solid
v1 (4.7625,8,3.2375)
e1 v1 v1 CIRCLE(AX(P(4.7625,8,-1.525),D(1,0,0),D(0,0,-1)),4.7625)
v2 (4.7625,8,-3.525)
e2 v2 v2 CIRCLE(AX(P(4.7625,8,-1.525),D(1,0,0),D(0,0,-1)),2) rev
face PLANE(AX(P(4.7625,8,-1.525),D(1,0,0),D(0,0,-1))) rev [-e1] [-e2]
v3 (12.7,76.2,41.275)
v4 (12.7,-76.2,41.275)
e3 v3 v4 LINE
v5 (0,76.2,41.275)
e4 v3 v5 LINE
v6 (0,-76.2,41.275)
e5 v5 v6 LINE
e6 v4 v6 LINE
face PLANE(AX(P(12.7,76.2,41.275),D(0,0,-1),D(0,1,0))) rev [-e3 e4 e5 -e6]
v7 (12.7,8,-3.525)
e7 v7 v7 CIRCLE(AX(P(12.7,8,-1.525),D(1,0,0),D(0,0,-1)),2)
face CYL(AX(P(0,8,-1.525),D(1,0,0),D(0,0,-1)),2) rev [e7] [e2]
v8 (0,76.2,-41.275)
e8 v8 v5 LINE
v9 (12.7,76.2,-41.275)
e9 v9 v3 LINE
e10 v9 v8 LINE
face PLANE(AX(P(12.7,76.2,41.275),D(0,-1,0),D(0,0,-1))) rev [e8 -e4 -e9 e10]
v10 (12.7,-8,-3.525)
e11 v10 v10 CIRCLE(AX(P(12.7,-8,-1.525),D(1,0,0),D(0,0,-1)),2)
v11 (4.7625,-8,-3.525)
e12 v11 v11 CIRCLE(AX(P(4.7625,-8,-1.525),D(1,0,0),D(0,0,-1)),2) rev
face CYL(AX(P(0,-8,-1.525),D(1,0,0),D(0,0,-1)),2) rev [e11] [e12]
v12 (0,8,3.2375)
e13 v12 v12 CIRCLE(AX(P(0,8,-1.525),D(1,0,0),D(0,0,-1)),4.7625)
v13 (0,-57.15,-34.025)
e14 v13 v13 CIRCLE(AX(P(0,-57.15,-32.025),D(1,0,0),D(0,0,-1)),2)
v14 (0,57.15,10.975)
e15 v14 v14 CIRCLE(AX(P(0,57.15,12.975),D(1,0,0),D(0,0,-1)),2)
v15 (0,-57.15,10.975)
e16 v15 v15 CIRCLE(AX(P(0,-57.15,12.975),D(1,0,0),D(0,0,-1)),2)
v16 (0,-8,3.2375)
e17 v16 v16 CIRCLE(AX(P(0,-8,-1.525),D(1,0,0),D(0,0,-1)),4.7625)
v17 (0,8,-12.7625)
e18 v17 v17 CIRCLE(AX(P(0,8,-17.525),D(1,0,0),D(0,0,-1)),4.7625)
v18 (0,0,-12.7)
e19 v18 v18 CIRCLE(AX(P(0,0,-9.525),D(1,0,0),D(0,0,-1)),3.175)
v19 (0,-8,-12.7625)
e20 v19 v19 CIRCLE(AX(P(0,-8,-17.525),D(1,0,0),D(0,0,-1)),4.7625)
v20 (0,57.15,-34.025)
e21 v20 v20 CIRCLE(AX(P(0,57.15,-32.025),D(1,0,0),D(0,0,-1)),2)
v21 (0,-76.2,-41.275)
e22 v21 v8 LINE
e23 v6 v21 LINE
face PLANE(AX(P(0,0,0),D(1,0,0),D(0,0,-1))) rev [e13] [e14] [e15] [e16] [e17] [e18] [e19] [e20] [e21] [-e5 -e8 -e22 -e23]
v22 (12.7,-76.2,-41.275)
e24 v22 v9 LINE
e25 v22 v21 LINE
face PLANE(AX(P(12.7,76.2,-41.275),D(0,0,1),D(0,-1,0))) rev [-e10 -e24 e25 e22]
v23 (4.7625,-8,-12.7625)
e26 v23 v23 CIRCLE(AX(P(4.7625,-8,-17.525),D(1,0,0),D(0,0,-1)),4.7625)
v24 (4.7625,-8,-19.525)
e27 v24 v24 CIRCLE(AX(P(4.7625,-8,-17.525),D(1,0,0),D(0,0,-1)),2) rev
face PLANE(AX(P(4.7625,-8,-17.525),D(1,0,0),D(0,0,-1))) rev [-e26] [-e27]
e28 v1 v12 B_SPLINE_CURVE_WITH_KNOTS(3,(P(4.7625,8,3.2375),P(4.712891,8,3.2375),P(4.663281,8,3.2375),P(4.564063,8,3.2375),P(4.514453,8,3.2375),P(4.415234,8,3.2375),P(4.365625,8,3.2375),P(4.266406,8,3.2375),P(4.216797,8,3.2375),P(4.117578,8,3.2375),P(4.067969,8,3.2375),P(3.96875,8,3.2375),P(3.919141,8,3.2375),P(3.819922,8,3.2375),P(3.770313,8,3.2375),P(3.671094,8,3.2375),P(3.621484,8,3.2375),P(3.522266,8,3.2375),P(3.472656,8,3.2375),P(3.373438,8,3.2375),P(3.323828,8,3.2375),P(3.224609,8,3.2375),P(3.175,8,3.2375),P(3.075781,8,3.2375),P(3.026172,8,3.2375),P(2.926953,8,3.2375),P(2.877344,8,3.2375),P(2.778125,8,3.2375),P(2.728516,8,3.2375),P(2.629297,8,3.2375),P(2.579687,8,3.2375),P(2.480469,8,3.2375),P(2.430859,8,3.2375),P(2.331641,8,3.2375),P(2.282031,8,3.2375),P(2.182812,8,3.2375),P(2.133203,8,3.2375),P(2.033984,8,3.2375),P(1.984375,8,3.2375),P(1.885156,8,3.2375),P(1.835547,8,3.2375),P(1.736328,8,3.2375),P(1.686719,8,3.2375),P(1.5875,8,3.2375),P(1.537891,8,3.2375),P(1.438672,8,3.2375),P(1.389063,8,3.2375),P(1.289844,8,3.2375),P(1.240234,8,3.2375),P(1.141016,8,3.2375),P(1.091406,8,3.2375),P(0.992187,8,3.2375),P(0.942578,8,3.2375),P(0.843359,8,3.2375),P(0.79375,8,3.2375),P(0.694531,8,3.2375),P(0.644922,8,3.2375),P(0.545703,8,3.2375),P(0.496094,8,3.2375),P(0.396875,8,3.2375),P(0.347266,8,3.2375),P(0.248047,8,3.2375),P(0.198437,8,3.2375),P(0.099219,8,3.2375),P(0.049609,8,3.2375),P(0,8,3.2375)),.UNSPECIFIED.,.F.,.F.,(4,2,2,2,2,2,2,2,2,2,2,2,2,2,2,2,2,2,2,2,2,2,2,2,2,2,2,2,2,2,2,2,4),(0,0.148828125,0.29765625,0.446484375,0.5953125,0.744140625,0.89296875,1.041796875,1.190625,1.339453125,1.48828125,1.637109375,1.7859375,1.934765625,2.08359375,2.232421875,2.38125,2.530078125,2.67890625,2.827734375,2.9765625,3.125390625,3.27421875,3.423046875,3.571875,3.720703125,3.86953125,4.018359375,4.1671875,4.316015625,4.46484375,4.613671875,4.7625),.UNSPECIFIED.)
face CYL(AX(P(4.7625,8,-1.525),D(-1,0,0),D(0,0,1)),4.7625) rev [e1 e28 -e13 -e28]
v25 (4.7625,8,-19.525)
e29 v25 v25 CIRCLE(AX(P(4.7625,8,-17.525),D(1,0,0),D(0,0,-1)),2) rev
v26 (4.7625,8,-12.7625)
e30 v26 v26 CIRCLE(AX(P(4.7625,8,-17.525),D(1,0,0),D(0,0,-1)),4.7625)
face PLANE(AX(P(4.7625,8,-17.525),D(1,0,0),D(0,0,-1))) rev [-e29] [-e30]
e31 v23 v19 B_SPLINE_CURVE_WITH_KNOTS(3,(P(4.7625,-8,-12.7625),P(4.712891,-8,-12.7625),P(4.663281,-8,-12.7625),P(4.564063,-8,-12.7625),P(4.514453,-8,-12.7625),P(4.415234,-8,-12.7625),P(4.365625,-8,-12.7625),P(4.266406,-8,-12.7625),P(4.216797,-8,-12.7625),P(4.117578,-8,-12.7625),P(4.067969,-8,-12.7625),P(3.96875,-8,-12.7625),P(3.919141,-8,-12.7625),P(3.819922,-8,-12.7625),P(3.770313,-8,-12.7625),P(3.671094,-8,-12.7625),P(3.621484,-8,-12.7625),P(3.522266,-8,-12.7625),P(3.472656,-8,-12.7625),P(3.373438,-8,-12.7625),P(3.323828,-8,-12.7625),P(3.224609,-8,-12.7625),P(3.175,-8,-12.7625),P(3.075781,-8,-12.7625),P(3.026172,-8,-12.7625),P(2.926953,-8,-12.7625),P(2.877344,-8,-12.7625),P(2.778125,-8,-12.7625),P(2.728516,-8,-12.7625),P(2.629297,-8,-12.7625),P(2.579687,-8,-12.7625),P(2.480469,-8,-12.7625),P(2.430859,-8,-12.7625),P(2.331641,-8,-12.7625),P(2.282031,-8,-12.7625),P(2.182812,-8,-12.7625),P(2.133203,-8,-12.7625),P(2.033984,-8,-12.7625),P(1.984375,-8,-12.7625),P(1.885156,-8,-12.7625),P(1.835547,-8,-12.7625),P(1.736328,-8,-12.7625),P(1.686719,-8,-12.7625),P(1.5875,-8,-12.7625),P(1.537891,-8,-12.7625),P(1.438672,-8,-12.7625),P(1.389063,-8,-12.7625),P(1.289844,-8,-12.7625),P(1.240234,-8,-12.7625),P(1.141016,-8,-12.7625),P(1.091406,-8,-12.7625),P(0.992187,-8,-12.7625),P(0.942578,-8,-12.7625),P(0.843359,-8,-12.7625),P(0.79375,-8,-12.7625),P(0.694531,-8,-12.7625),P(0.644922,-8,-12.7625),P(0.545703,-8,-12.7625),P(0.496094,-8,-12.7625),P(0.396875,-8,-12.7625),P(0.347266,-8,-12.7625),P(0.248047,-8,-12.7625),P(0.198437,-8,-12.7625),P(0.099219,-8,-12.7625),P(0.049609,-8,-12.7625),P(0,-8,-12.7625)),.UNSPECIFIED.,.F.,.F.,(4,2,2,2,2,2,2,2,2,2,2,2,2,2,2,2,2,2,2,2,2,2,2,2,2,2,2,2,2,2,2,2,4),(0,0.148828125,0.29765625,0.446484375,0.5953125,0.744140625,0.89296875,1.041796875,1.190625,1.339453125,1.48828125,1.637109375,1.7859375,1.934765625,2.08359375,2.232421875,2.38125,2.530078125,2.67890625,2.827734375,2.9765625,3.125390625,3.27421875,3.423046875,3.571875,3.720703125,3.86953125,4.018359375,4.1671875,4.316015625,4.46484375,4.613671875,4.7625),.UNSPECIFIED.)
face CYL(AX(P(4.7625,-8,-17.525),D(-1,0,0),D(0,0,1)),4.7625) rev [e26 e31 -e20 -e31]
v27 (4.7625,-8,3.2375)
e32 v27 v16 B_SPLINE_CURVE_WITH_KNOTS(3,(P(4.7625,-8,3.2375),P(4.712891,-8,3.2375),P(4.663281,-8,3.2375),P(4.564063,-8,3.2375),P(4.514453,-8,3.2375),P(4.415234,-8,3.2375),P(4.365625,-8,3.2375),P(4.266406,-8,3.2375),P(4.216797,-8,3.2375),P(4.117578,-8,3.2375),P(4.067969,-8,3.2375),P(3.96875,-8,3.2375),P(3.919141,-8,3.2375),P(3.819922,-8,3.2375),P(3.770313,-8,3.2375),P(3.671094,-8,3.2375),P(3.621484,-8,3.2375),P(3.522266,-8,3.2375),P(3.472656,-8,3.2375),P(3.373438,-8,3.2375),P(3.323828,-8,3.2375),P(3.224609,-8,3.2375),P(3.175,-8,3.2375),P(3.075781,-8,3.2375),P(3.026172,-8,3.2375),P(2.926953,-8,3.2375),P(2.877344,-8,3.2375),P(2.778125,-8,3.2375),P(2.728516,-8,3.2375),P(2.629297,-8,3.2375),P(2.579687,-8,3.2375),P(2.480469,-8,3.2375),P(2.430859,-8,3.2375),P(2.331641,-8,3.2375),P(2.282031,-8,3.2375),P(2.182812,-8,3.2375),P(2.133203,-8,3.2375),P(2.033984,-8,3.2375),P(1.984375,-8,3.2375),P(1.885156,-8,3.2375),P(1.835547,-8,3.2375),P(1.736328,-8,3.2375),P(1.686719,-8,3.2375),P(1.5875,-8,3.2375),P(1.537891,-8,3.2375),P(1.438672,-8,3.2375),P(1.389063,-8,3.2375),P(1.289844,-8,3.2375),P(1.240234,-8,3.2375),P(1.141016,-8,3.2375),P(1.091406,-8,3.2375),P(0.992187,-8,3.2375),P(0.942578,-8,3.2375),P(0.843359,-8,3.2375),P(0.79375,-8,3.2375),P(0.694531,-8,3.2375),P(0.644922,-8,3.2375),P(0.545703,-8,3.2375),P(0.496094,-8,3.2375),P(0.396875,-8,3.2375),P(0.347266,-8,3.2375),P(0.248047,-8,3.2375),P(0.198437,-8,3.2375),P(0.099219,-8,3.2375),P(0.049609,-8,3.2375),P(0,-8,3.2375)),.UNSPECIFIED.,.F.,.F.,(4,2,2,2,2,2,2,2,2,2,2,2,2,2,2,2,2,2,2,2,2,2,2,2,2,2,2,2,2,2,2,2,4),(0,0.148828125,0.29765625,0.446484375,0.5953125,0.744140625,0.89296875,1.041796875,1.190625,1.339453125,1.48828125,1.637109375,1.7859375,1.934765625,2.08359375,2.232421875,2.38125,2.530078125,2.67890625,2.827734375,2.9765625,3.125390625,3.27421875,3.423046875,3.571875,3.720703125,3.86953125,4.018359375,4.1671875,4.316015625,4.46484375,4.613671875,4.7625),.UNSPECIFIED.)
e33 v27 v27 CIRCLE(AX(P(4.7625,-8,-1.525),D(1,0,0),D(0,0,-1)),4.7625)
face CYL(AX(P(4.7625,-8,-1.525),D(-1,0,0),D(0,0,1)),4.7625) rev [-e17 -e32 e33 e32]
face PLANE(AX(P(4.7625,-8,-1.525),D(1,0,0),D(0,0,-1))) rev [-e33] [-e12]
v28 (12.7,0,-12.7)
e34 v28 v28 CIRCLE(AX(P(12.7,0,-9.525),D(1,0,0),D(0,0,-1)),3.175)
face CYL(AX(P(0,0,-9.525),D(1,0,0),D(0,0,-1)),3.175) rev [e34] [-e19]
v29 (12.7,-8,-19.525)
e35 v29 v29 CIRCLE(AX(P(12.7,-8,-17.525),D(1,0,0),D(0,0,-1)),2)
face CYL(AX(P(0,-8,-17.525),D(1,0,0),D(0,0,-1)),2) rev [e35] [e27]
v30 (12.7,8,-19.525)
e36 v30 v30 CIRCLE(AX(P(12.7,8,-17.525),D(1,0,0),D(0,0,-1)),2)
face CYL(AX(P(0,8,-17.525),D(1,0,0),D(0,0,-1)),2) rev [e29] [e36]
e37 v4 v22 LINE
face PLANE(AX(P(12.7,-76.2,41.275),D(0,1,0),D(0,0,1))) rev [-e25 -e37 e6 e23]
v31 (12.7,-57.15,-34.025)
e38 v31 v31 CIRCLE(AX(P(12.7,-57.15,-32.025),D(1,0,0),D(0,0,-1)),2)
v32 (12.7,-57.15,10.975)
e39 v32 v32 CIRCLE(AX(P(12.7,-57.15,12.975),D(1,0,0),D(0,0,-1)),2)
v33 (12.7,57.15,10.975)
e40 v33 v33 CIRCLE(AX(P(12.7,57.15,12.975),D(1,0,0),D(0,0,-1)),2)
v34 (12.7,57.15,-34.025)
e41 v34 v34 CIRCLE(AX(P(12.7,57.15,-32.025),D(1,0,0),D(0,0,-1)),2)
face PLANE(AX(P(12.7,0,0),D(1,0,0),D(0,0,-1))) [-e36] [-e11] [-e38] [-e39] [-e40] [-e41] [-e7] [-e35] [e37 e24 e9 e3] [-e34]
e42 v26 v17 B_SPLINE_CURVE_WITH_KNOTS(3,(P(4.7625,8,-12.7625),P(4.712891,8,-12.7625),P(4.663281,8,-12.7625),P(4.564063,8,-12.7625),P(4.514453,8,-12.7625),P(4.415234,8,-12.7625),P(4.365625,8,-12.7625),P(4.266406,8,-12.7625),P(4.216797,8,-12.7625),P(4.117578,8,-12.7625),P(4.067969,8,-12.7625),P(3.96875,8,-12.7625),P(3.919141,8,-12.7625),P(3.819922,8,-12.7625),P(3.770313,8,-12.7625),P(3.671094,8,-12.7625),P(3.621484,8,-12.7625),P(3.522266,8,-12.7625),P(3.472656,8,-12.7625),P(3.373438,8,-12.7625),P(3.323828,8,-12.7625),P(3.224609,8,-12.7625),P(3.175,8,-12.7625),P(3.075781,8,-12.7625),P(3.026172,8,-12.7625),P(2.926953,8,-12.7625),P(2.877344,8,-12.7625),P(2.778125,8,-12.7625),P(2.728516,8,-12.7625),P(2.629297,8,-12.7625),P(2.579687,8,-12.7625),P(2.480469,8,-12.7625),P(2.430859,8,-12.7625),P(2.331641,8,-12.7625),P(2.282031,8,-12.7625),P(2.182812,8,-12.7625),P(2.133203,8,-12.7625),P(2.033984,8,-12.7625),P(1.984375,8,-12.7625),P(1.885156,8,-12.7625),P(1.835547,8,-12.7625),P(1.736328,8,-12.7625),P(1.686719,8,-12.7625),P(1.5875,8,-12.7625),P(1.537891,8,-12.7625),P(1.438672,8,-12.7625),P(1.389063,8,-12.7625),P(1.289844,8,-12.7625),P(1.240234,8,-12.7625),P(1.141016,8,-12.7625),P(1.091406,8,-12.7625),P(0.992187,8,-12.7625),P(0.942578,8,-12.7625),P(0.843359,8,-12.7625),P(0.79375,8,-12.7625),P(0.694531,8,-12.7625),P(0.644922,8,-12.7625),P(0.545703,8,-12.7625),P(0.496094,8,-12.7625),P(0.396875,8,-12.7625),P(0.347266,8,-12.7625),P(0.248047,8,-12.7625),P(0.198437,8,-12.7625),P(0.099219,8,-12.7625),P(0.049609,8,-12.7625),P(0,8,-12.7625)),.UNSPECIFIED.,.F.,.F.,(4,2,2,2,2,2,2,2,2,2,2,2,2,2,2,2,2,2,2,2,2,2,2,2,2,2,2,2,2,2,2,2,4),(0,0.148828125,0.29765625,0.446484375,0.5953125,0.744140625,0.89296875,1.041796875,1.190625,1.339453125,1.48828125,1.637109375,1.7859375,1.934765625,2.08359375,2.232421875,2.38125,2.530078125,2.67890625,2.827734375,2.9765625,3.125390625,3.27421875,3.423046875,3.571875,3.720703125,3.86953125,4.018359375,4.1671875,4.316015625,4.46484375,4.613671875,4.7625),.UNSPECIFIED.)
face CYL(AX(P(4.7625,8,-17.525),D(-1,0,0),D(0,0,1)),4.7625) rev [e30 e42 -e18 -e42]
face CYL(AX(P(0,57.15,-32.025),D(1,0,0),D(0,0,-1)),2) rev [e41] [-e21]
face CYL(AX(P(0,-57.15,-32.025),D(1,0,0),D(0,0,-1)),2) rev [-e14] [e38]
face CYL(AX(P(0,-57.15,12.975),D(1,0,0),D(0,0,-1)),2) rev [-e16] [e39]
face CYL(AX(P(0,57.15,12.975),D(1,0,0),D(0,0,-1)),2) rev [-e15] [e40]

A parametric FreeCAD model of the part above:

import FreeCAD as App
import Part
import Sketcher
Q = App.Units.Quantity

doc = App.newDocument("Part")
params = doc.addObject("Spreadsheet::Sheet", "Params")
for row, (alias, value) in enumerate([
    ("sketch1_width", "6 in"),
    ("sketch1_height", "3.25 in"),
    ("pad1_length", "0.5 in"),
    ("sketch3_diameter", "0.25 in"),
    ("sketch4_diameter", "0.375 in"),
    ("pocket3_length", "0.1875 in"),
], start=1):
    params.set(f"A{row}", alias)
    params.set(f"B{row}", "=" + value)
    params.setAlias(f"B{row}", alias)

body = doc.addObject("PartDesign::Body", "Body")

# Sketch on YZ plane
sketch1 = body.newObject("Sketcher::SketchObject", "Sketch")
sketch1.AttachmentSupport = (doc.getObject("YZ_Plane"), [""])
sketch1.MapMode = "FlatFace"
sketch1.addGeometry([
    Part.LineSegment(App.Vector(76.2, 41.275, 0), App.Vector(-76.2, 41.275, 0)),
    Part.LineSegment(App.Vector(-76.2, 41.275, 0), App.Vector(-76.2, -41.275, 0)),
    Part.LineSegment(App.Vector(-76.2, -41.275, 0), App.Vector(76.2, -41.275, 0)),
    Part.LineSegment(App.Vector(76.2, -41.275, 0), App.Vector(76.2, 41.275, 0)),
], False)
sketch1.addConstraint([
    Sketcher.Constraint("Coincident", 0, 2, 1, 1),
    Sketcher.Constraint("Coincident", 1, 2, 2, 1),
    Sketcher.Constraint("Coincident", 2, 2, 3, 1),
    Sketcher.Constraint("Coincident", 3, 2, 0, 1),
    Sketcher.Constraint("Horizontal", 0),
    Sketcher.Constraint("Vertical", 1),
    Sketcher.Constraint("Horizontal", 2),
    Sketcher.Constraint("Vertical", 3),
    Sketcher.Constraint("Symmetric", 0, 2, 2, 2, -1, 1),
    Sketcher.Constraint("DistanceX", 0, 2, 0, 1, Q("6 in")),
    Sketcher.Constraint("DistanceY", 1, 2, 1, 1, Q("3.25 in")),
])
sketch1.setExpression("Constraints[9]", "Params.sketch1_width")
sketch1.setExpression("Constraints[10]", "Params.sketch1_height")
pad1 = body.newObject("PartDesign::Pad", "Pad")
pad1.Profile = sketch1
pad1.setExpression("Length", "Params.pad1_length")

# Sketch on YZ plane
sketch2 = body.newObject("Sketcher::SketchObject", "Sketch001")
sketch2.AttachmentSupport = (doc.getObject("YZ_Plane"), [""])
sketch2.MapMode = "FlatFace"
sketch2.AttachmentOffset = App.Placement(App.Vector(0, 0, 0.5 * 25.4), App.Rotation())
sketch2.addGeometry([
    Part.Circle(App.Vector(57.15, 12.975, 0), App.Vector(0, 0, 1), 2),
    Part.Circle(App.Vector(57.15, -32.025, 0), App.Vector(0, 0, 1), 2),
    Part.Circle(App.Vector(-57.15, 12.975, 0), App.Vector(0, 0, 1), 2),
    Part.Circle(App.Vector(-57.15, -32.025, 0), App.Vector(0, 0, 1), 2),
], False)
sketch2.addConstraint([
    Sketcher.Constraint("Equal", 0, 1),
    Sketcher.Constraint("Equal", 1, 2),
    Sketcher.Constraint("Equal", 2, 3),
    Sketcher.Constraint("Symmetric", 0, 3, 2, 3, -2),
    Sketcher.Constraint("Symmetric", 1, 3, 3, 3, -2),
    Sketcher.Constraint("Vertical", 0, 3, 1, 3),
    Sketcher.Constraint("DistanceX", 2, 3, 0, 3, Q("4.5 in")),
    Sketcher.Constraint("Diameter", 0, Q("4 mm")),
    Sketcher.Constraint("DistanceY", -1, 1, 0, 3, Q("12.975 mm")),
    Sketcher.Constraint("DistanceY", 1, 3, -1, 1, Q("32.025 mm")),
])
pocket1 = body.newObject("PartDesign::Pocket", "Pocket")
pocket1.Profile = sketch2
pocket1.Type = "ThroughAll"

# Sketch on YZ plane
sketch3 = body.newObject("Sketcher::SketchObject", "Sketch002")
sketch3.AttachmentSupport = (doc.getObject("YZ_Plane"), [""])
sketch3.MapMode = "FlatFace"
sketch3.AttachmentOffset = App.Placement(App.Vector(0, 0, 0.5 * 25.4), App.Rotation())
sketch3.addGeometry([
    Part.Circle(App.Vector(0, -9.525, 0), App.Vector(0, 0, 1), 3.175),  # 0
    Part.Circle(App.Vector(8, -17.525, 0), App.Vector(0, 0, 1), 2),  # 1
    Part.Circle(App.Vector(8, -1.525, 0), App.Vector(0, 0, 1), 2),  # 2
    Part.Circle(App.Vector(-8, -1.525, 0), App.Vector(0, 0, 1), 2),  # 3
    Part.Circle(App.Vector(-8, -17.525, 0), App.Vector(0, 0, 1), 2),  # 4
], False)
sketch3.addConstraint([
    Sketcher.Constraint("Equal", 1, 2),
    Sketcher.Constraint("Equal", 2, 3),
    Sketcher.Constraint("Equal", 3, 4),
    Sketcher.Constraint("Symmetric", 2, 3, 3, 3, -2),
    Sketcher.Constraint("Symmetric", 1, 3, 4, 3, -2),
    Sketcher.Constraint("PointOnObject", 0, 3, -2),
    Sketcher.Constraint("Vertical", 1, 3, 2, 3),
    Sketcher.Constraint("Diameter", 0, Q("0.25 in")),
    Sketcher.Constraint("Diameter", 1, Q("4 mm")),
    Sketcher.Constraint("DistanceY", 0, 3, -1, 1, Q("0.375 in")),
    Sketcher.Constraint("DistanceX", -1, 1, 1, 3, Q("8 mm")),
    Sketcher.Constraint("DistanceY", 1, 3, -1, 1, Q("17.525 mm")),
    Sketcher.Constraint("DistanceY", 2, 3, -1, 1, Q("1.525 mm")),
])
sketch3.setExpression("Constraints[7]", "Params.sketch3_diameter")
pocket2 = body.newObject("PartDesign::Pocket", "Pocket001")
pocket2.Profile = sketch3
pocket2.Type = "ThroughAll"

# Sketch on YZ plane
sketch4 = body.newObject("Sketcher::SketchObject", "Sketch003")
sketch4.AttachmentSupport = (doc.getObject("YZ_Plane"), [""])
sketch4.MapMode = "FlatFace"
sketch4.addGeometry([
    Part.Circle(App.Vector(8, -17.525, 0), App.Vector(0, 0, 1), 4.7625),
    Part.Circle(App.Vector(8, -1.525, 0), App.Vector(0, 0, 1), 4.7625),
    Part.Circle(App.Vector(-8, -1.525, 0), App.Vector(0, 0, 1), 4.7625),
    Part.Circle(App.Vector(-8, -17.525, 0), App.Vector(0, 0, 1), 4.7625),
], False)
sketch4.addConstraint([
    Sketcher.Constraint("Equal", 0, 1),
    Sketcher.Constraint("Equal", 1, 2),
    Sketcher.Constraint("Equal", 2, 3),
    Sketcher.Constraint("Symmetric", 1, 3, 2, 3, -2),
    Sketcher.Constraint("Symmetric", 0, 3, 3, 3, -2),
    Sketcher.Constraint("Vertical", 0, 3, 1, 3),
    Sketcher.Constraint("Diameter", 0, Q("0.375 in")),
    Sketcher.Constraint("DistanceX", -1, 1, 0, 3, Q("8 mm")),
    Sketcher.Constraint("DistanceY", 0, 3, -1, 1, Q("17.525 mm")),
    Sketcher.Constraint("DistanceY", 1, 3, -1, 1, Q("1.525 mm")),
])
sketch4.setExpression("Constraints[6]", "Params.sketch4_diameter")
pocket3 = body.newObject("PartDesign::Pocket", "Pocket002")
pocket3.Profile = sketch4
pocket3.setExpression("Length", "Params.pocket3_length")
pocket3.Reversed = True

doc.recompute()
